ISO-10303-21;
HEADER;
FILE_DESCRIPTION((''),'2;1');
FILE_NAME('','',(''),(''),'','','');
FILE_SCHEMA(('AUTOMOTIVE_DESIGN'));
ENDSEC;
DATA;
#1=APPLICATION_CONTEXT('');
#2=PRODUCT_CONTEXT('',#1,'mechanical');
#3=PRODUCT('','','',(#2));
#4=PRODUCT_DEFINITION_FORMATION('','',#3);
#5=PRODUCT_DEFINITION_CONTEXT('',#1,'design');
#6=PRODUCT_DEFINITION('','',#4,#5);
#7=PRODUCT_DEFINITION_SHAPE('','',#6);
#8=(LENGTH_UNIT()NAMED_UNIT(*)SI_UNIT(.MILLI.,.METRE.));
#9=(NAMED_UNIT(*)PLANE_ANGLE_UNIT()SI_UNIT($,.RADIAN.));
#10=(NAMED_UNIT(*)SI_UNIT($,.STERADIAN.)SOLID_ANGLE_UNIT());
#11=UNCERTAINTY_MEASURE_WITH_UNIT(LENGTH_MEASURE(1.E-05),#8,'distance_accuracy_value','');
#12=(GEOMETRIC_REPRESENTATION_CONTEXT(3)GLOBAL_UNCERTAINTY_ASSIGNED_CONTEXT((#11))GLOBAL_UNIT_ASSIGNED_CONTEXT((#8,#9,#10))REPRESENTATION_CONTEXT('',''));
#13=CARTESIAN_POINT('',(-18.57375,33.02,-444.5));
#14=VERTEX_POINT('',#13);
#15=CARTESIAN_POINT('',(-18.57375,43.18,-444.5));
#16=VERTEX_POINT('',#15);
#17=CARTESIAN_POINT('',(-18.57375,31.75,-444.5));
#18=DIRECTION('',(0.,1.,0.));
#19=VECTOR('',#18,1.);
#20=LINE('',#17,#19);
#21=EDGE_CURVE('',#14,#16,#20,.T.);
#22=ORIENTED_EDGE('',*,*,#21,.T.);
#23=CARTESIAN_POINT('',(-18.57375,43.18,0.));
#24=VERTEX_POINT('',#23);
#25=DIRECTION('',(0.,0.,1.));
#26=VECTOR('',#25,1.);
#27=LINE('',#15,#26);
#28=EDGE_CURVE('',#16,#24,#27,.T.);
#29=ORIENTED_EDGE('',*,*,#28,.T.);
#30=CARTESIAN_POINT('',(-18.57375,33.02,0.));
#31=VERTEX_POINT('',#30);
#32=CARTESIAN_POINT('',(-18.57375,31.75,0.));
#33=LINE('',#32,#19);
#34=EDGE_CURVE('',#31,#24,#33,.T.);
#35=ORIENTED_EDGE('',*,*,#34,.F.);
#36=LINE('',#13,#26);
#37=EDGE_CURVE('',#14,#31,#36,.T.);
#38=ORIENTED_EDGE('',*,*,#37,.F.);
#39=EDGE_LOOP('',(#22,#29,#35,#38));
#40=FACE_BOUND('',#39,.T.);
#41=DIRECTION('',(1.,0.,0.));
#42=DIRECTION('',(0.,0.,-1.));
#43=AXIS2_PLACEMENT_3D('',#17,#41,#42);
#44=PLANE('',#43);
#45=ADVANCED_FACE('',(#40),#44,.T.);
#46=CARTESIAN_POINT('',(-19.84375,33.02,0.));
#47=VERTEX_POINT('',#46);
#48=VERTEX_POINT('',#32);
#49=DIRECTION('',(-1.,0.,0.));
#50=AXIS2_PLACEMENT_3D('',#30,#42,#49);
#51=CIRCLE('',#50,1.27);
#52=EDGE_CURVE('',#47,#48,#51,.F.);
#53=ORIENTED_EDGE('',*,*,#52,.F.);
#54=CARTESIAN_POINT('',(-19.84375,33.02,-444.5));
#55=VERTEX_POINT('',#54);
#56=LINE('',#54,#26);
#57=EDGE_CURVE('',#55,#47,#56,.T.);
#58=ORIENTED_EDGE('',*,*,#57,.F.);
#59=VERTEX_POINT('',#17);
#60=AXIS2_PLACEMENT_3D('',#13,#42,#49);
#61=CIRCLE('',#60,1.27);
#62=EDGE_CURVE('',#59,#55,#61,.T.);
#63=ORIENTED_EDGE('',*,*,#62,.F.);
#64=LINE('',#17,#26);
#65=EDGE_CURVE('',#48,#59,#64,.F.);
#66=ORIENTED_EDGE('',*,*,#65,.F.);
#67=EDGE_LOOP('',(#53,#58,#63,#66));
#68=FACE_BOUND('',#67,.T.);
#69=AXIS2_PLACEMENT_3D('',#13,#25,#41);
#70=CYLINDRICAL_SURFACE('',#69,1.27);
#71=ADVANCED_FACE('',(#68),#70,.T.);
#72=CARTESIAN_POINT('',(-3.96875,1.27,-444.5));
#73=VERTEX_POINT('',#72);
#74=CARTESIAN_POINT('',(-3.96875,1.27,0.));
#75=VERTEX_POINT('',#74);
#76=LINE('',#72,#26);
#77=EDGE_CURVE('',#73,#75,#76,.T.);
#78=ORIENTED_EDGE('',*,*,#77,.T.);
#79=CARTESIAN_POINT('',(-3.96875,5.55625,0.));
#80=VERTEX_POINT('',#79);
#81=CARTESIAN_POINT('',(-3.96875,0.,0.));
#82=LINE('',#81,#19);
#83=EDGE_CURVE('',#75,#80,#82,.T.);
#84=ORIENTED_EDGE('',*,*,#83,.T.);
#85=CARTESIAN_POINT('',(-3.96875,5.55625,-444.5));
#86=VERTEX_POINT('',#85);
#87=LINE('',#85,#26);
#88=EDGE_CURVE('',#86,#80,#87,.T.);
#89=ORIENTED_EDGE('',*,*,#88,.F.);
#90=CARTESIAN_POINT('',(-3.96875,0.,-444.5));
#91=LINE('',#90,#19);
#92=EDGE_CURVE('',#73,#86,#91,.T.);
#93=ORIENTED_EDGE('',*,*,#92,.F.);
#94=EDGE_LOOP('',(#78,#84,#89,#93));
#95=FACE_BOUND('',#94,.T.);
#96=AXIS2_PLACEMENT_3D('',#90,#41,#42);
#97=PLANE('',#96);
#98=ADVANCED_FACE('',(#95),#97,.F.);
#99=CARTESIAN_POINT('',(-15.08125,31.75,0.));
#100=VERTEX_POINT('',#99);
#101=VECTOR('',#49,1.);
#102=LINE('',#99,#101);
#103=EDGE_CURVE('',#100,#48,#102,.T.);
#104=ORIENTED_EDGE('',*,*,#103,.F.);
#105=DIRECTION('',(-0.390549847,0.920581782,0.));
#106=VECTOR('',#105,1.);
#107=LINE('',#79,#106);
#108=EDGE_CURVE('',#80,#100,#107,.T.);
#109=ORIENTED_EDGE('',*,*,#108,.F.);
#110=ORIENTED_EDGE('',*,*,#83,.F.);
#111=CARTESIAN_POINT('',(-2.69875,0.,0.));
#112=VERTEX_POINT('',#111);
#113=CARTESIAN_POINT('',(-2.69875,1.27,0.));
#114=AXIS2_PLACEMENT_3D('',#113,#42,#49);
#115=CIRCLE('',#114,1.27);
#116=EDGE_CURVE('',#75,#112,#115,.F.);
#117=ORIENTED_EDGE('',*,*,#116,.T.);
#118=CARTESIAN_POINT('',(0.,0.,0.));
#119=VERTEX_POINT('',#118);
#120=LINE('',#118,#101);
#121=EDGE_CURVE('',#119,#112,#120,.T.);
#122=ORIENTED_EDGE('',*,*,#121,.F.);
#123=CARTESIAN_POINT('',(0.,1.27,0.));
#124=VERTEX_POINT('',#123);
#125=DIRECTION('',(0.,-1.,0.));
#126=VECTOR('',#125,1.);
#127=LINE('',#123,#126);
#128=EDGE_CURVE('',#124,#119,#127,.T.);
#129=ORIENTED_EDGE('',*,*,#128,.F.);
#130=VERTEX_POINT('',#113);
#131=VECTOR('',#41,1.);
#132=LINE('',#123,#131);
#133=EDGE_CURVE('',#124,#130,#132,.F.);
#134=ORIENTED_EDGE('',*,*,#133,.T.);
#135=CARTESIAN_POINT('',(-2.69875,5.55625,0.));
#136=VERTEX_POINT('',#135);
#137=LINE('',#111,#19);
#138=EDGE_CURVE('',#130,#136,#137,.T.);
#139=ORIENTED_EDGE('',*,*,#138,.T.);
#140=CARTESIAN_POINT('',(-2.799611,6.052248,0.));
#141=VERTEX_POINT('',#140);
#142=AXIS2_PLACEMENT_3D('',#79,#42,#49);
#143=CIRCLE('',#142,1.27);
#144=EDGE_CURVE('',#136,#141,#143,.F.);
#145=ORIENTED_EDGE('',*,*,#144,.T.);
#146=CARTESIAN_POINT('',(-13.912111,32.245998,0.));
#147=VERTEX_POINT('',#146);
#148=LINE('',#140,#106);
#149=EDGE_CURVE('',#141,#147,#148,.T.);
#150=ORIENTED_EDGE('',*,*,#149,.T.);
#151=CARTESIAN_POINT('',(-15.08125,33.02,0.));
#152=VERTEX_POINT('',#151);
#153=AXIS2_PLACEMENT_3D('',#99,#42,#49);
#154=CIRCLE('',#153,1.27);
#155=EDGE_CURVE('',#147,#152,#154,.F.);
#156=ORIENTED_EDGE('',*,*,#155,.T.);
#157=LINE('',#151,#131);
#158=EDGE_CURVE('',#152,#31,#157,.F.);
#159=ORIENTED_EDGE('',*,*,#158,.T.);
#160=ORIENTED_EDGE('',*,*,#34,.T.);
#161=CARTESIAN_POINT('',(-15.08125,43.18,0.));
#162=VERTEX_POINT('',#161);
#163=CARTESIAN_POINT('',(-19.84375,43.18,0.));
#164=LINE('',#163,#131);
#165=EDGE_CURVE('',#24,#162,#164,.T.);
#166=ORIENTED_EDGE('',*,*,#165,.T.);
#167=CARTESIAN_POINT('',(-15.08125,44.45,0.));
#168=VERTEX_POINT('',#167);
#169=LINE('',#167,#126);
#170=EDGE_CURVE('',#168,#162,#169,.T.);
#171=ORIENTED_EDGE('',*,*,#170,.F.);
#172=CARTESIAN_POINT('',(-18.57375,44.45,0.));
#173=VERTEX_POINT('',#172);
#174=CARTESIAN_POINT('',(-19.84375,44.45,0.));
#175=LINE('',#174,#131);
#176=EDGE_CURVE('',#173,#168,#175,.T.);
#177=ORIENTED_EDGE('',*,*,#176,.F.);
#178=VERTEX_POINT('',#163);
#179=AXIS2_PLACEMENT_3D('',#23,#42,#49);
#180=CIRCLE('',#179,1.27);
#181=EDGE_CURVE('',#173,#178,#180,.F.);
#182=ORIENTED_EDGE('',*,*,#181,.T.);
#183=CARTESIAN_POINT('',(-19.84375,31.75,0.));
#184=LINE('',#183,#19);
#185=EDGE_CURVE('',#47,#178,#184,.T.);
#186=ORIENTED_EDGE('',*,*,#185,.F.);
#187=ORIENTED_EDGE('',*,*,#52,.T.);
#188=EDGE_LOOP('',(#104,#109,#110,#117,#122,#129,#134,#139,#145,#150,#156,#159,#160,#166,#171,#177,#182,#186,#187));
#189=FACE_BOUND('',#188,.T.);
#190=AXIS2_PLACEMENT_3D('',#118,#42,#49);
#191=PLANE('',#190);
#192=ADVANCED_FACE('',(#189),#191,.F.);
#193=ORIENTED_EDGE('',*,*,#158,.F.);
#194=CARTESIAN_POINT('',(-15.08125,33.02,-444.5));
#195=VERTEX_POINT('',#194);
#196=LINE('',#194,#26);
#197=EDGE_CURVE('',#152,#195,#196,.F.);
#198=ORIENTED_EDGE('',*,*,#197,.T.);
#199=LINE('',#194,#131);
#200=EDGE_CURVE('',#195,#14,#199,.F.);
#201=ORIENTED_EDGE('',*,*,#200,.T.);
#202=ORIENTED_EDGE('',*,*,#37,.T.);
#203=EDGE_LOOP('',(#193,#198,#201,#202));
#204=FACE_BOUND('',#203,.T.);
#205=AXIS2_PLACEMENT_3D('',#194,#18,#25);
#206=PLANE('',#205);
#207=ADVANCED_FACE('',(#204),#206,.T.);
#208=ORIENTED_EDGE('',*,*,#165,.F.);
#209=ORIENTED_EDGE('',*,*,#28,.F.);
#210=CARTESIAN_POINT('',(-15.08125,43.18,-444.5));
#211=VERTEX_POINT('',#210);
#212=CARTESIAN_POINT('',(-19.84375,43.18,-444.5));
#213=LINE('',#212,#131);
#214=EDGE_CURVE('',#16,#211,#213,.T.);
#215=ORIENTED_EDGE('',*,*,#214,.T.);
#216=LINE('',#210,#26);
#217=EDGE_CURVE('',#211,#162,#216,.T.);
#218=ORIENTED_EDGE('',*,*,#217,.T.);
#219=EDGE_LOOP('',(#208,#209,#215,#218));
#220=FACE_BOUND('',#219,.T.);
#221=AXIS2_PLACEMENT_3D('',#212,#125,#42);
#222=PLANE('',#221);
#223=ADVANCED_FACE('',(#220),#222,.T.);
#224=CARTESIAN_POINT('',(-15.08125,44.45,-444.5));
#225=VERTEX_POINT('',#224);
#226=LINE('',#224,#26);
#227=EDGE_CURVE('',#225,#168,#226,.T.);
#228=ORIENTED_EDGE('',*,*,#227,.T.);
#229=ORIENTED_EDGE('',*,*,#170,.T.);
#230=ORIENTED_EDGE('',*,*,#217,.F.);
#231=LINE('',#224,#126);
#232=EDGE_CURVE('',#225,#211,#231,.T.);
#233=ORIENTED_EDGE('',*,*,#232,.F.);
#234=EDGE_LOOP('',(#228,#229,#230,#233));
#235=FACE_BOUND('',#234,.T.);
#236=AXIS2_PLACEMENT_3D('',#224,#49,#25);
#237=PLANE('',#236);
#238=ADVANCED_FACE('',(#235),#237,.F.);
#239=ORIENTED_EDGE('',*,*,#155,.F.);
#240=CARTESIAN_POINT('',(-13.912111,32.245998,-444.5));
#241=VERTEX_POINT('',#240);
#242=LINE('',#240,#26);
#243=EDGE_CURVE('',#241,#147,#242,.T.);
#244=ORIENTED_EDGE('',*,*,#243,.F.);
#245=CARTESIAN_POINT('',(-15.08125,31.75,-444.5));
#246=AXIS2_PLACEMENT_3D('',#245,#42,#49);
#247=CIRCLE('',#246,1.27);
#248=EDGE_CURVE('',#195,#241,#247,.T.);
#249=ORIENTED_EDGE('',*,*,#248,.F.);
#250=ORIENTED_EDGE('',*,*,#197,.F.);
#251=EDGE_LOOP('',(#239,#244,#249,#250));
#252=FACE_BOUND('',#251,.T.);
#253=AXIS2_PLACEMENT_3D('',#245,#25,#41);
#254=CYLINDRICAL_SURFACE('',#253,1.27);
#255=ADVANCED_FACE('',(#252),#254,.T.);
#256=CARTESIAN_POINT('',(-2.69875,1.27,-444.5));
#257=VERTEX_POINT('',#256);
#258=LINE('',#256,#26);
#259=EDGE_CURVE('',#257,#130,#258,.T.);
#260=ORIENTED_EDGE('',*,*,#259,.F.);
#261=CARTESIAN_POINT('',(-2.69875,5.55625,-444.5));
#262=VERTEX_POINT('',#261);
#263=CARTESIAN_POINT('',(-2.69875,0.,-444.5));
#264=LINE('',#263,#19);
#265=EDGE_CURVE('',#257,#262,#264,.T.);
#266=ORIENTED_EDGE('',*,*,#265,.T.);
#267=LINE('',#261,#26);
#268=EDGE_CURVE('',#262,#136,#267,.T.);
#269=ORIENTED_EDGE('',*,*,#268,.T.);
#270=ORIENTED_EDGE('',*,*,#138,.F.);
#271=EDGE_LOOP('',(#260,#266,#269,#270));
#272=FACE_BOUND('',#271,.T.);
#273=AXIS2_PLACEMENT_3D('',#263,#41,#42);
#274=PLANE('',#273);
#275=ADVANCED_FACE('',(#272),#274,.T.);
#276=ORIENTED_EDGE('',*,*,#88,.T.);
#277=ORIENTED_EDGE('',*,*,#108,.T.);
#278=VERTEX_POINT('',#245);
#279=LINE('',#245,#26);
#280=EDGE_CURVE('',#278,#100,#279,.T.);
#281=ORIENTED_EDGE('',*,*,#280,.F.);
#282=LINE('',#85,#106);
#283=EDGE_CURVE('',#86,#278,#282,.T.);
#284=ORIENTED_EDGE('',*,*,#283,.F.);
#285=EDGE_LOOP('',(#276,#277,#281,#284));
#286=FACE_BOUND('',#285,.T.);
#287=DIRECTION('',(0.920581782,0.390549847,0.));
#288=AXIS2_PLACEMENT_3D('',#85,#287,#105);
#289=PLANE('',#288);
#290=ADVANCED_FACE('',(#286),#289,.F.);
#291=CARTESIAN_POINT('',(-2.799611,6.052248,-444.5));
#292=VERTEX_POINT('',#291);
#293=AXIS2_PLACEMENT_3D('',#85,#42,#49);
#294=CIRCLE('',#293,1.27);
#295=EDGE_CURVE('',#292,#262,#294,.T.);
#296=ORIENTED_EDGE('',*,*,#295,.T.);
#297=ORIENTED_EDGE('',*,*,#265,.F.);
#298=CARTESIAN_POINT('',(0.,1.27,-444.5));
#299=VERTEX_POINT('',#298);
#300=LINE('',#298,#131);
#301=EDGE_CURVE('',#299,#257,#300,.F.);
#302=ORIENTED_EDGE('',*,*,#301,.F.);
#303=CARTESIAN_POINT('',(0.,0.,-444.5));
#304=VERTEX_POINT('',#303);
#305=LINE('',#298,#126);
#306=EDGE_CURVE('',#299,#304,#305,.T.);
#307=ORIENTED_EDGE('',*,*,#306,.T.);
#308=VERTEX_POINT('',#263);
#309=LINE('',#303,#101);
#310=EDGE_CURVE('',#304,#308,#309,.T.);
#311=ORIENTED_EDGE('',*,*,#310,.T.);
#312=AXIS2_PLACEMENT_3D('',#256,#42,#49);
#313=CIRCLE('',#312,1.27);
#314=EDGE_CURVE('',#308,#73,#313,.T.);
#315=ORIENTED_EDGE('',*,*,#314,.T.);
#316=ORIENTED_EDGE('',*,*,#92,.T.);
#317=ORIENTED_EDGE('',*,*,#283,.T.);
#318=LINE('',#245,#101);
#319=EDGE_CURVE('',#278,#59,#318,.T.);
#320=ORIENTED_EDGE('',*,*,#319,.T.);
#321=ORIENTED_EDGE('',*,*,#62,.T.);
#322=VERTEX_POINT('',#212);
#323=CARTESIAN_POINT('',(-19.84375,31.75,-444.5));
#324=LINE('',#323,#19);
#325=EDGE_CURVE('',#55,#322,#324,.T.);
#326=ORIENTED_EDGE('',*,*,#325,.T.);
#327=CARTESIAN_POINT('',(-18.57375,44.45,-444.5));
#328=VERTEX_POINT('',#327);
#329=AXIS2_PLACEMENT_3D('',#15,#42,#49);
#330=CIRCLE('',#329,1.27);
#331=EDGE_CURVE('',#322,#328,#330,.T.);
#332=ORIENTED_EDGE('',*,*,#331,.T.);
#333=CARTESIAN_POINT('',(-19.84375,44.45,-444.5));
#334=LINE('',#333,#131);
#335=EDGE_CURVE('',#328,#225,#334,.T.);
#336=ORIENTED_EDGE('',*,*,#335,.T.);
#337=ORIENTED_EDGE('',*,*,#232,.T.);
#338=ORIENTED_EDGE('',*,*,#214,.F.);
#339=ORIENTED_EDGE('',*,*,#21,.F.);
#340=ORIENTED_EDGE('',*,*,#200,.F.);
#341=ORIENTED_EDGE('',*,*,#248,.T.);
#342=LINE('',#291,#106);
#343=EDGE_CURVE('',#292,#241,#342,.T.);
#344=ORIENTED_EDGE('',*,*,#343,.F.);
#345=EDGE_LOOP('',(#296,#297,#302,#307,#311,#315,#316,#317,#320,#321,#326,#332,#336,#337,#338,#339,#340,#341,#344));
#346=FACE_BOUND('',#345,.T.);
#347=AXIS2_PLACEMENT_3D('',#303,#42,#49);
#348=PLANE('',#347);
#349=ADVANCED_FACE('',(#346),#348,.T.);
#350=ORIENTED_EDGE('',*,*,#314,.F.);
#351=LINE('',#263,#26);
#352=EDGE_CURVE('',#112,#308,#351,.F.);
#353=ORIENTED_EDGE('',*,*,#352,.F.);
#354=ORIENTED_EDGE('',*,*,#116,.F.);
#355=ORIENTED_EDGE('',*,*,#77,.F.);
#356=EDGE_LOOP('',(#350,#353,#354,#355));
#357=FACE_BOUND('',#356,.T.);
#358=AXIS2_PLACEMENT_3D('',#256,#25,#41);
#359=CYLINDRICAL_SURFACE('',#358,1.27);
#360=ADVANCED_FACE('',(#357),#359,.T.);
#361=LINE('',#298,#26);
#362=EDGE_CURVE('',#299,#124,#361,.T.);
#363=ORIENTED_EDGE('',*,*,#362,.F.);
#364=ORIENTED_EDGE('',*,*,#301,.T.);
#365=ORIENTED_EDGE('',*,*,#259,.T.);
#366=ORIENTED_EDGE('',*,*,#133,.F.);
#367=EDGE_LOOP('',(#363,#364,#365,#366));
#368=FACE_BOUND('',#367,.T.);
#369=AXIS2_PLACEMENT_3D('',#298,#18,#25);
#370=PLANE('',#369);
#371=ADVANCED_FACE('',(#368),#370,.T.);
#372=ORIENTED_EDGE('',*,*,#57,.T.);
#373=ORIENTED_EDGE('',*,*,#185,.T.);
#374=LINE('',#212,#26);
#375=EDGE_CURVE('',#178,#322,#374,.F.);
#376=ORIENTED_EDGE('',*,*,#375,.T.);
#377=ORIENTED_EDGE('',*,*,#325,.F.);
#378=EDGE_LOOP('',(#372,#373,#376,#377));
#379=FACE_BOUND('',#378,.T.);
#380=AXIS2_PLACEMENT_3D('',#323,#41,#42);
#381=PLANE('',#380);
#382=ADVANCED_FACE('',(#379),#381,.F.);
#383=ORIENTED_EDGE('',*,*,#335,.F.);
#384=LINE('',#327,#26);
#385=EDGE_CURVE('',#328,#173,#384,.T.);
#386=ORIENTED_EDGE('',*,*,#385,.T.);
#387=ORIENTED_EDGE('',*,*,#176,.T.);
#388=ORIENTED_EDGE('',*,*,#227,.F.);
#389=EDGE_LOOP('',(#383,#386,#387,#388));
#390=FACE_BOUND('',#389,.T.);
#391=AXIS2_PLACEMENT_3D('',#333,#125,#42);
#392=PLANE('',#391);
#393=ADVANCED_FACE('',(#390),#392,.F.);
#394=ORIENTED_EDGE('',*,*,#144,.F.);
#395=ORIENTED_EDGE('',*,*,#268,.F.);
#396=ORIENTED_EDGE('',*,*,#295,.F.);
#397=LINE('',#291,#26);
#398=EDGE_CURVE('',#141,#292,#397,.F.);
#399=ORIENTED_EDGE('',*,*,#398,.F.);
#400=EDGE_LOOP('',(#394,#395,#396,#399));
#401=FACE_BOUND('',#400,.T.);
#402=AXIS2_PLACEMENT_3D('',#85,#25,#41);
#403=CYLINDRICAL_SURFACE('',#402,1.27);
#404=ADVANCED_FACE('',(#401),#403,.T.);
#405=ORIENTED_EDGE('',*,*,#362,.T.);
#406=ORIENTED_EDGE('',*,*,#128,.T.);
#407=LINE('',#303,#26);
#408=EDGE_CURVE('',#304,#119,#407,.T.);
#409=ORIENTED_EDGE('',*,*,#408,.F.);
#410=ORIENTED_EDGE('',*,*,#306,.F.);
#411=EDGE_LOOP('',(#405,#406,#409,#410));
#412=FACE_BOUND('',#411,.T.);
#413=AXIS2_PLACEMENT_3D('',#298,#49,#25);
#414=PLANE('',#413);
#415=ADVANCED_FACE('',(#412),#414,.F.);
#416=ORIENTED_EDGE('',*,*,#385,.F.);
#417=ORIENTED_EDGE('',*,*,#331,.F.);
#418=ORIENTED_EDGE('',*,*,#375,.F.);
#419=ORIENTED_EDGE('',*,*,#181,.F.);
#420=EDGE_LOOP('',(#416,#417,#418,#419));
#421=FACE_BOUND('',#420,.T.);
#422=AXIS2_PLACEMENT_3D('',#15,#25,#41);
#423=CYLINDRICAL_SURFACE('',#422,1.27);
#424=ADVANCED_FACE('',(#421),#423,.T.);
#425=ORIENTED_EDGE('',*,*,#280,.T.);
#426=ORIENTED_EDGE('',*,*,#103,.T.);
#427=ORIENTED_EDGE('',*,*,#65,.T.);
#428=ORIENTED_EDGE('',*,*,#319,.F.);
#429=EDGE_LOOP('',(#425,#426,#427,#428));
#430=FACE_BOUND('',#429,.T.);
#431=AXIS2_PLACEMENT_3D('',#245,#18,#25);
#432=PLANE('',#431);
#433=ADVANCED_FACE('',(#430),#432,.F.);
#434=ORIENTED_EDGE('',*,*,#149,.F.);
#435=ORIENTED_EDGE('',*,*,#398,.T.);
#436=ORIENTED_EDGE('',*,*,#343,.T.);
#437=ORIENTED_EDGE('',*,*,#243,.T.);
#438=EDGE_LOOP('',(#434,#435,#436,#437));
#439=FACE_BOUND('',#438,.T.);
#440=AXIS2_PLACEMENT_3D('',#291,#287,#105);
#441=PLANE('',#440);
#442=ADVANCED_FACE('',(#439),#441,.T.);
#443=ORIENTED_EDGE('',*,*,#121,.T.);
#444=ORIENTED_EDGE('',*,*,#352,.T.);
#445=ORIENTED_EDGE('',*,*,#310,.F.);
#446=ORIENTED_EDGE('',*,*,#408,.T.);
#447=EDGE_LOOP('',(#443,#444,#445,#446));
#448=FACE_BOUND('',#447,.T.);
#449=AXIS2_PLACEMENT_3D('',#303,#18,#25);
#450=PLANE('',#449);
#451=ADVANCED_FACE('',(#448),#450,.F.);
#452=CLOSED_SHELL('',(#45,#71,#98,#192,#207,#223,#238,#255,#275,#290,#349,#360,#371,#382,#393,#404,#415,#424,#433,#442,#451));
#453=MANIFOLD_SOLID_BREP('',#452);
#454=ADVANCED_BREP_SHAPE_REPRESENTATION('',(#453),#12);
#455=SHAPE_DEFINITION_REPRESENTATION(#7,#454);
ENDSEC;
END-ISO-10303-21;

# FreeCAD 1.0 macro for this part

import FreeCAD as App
import Part
import Sketcher

V = App.Vector
Q = App.Units.Quantity


def edges_at(feature, points):
    """Names of the edges that pass closest to the given points."""
    edges = feature.Shape.Edges
    near = lambda p: min(range(len(edges)), key=lambda i: edges[i].distToShape(Part.Vertex(*p))[0])
    return sorted({f"Edge{near(p) + 1}" for p in points})


def add_polygon(sketch, points):
    """Adds a closed chain of lines whose ends are joined by coincident constraints."""
    first, n = sketch.GeometryCount, len(points)
    for a, b in zip(points, points[1:] + points[:1]):
        sketch.addGeometry(Part.LineSegment(App.Vector(*a, 0), App.Vector(*b, 0)), False)
    for i in range(n):
        sketch.addConstraint(Sketcher.Constraint("Coincident", first + i, 2, first + (i + 1) % n, 1))

doc = App.newDocument("Part")
body = doc.addObject("PartDesign::Body", "Body")

# Sketch on XY plane
sketch1 = body.newObject("Sketcher::SketchObject", "Sketch")
sketch1.AttachmentSupport = (doc.getObject("XY_Plane"), [""])
sketch1.MapMode = "FlatFace"
add_polygon(sketch1, [(-3.96875, 0), (0, 0), (0, 1.27), (-2.69875, 1.27), (-2.69875, 5.814504), (-14.240475, 33.02), (-18.57375, 33.02), (-18.57375, 43.18), (-15.08125, 43.18), (-15.08125, 44.45), (-19.84375, 44.45), (-19.84375, 31.75), (-15.08125, 31.75), (-3.96875, 5.55625)])  # lines 0-13
sketch1.addConstraint(Sketcher.Constraint("Horizontal", 0))
sketch1.addConstraint(Sketcher.Constraint("Vertical", 1))
sketch1.addConstraint(Sketcher.Constraint("Horizontal", 2))
sketch1.addConstraint(Sketcher.Constraint("Vertical", 3))
sketch1.addConstraint(Sketcher.Constraint("Horizontal", 5))
sketch1.addConstraint(Sketcher.Constraint("Vertical", 6))
sketch1.addConstraint(Sketcher.Constraint("Horizontal", 7))
sketch1.addConstraint(Sketcher.Constraint("Vertical", 8))
sketch1.addConstraint(Sketcher.Constraint("Horizontal", 9))
sketch1.addConstraint(Sketcher.Constraint("Vertical", 10))
sketch1.addConstraint(Sketcher.Constraint("Horizontal", 11))
sketch1.addConstraint(Sketcher.Constraint("Vertical", 13))
sketch1.addConstraint(Sketcher.Constraint("Coincident", 0, 2, -1, 1))
sketch1.addConstraint(Sketcher.Constraint("Parallel", 4, 12))
sketch1.addConstraint(Sketcher.Constraint("Vertical", 8, 2, 11, 2))
sketch1.addConstraint(Sketcher.Constraint("Equal", 1, 8))
sketch1.addConstraint(Sketcher.Constraint("DistanceY", 6, 1, 6, 2, Q("0.4 in")))
sketch1.addConstraint(Sketcher.Constraint("DistanceY", 10, 2, 10, 1, Q("0.5 in")))
sketch1.addConstraint(Sketcher.Constraint("DistanceY", 1, 1, 1, 2, Q("0.05 in")))
sketch1.addConstraint(Sketcher.Constraint("DistanceY", -1, 1, 4, 2, Q("1.3 in")))
sketch1.addConstraint(Sketcher.Constraint("DistanceX", 0, 1, 0, 2, Q("0.15625 in")))
sketch1.addConstraint(Sketcher.Constraint("DistanceX", 9, 2, 9, 1, Q("0.1875 in")))
sketch1.addConstraint(Sketcher.Constraint("DistanceY", 13, 2, 13, 1, Q("0.21875 in")))
sketch1.addConstraint(Sketcher.Constraint("DistanceX", 9, 2, 6, 2, Q("0.05 in")))
sketch1.addConstraint(Sketcher.Constraint("DistanceX", 12, 2, 3, 2, Q("0.05 in")))
sketch1.addConstraint(Sketcher.Constraint("DistanceX", 7, 2, -1, 1, Q("0.59375 in")))
sketch1.addConstraint(Sketcher.Constraint("DistanceX", 5, 2, 5, 1, Q("4.333275 mm")))
pad1 = body.newObject("PartDesign::Pad", "Pad")
pad1.Profile = sketch1
pad1.Length = Q("17.5 in")
pad1.Reversed = True
doc.recompute()

fillet = body.newObject("PartDesign::Fillet", "Fillet")
fillet.Base = (pad1, edges_at(pad1, [
    (-14.24, 33.02, -222.25),
    (-2.699, 5.815, -222.25),
    (-3.969, 0, -222.25),
    (-19.844, 31.75, -222.25),
    (-19.844, 44.45, -222.25),
]))
fillet.Radius = Q("0.05 in")

doc.recompute()
